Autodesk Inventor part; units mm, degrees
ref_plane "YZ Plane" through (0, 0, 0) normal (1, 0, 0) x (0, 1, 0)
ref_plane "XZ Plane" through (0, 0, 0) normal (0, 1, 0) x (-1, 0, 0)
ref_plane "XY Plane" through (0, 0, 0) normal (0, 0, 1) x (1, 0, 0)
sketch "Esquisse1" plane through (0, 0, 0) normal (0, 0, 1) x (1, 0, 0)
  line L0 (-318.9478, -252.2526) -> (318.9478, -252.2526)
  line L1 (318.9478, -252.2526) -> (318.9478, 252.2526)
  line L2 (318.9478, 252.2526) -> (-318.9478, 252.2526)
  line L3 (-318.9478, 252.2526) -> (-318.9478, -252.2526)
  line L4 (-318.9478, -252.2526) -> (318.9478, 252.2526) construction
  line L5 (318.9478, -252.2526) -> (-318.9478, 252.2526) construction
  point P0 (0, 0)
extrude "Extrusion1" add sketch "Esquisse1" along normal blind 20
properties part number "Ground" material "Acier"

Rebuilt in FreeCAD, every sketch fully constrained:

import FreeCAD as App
import Part
import Sketcher
Q = App.Units.Quantity

doc = App.newDocument("Part")
body = doc.addObject("PartDesign::Body", "Body")

# Sketch on XY plane
sketch1 = doc.addObject("Sketcher::SketchObject", "Sketch")
body.addObject(sketch1)
sketch1.AttachmentSupport = (doc.XY_Plane, [""])
sketch1.MapMode = "FlatFace"
sketch1.addGeometry([
    Part.LineSegment(App.Vector(-318.9478, 252.2526, 0), App.Vector(-318.9478, -252.2526, 0)),
    Part.LineSegment(App.Vector(-318.9478, -252.2526, 0), App.Vector(318.9478, -252.2526, 0)),
    Part.LineSegment(App.Vector(318.9478, -252.2526, 0), App.Vector(318.9478, 252.2526, 0)),
    Part.LineSegment(App.Vector(318.9478, 252.2526, 0), App.Vector(-318.9478, 252.2526, 0)),
], False)
sketch1.addConstraint([
    Sketcher.Constraint("Coincident", 0, 2, 1, 1),
    Sketcher.Constraint("Coincident", 1, 2, 2, 1),
    Sketcher.Constraint("Coincident", 2, 2, 3, 1),
    Sketcher.Constraint("Coincident", 3, 2, 0, 1),
    Sketcher.Constraint("Vertical", 0),
    Sketcher.Constraint("Horizontal", 1),
    Sketcher.Constraint("Vertical", 2),
    Sketcher.Constraint("Horizontal", 3),
    Sketcher.Constraint("Symmetric", 0, 2, 2, 2, -1, 1),
    Sketcher.Constraint("DistanceX", 1, 1, 1, 2, Q("25.114 in")),
    Sketcher.Constraint("DistanceY", 0, 2, 0, 1, Q("19.8624 in")),
])
pad1 = doc.addObject("PartDesign::Pad", "Pad")
body.addObject(pad1)
pad1.Profile = sketch1
pad1.Length = Q("0.7874016 in")

doc.recompute()
